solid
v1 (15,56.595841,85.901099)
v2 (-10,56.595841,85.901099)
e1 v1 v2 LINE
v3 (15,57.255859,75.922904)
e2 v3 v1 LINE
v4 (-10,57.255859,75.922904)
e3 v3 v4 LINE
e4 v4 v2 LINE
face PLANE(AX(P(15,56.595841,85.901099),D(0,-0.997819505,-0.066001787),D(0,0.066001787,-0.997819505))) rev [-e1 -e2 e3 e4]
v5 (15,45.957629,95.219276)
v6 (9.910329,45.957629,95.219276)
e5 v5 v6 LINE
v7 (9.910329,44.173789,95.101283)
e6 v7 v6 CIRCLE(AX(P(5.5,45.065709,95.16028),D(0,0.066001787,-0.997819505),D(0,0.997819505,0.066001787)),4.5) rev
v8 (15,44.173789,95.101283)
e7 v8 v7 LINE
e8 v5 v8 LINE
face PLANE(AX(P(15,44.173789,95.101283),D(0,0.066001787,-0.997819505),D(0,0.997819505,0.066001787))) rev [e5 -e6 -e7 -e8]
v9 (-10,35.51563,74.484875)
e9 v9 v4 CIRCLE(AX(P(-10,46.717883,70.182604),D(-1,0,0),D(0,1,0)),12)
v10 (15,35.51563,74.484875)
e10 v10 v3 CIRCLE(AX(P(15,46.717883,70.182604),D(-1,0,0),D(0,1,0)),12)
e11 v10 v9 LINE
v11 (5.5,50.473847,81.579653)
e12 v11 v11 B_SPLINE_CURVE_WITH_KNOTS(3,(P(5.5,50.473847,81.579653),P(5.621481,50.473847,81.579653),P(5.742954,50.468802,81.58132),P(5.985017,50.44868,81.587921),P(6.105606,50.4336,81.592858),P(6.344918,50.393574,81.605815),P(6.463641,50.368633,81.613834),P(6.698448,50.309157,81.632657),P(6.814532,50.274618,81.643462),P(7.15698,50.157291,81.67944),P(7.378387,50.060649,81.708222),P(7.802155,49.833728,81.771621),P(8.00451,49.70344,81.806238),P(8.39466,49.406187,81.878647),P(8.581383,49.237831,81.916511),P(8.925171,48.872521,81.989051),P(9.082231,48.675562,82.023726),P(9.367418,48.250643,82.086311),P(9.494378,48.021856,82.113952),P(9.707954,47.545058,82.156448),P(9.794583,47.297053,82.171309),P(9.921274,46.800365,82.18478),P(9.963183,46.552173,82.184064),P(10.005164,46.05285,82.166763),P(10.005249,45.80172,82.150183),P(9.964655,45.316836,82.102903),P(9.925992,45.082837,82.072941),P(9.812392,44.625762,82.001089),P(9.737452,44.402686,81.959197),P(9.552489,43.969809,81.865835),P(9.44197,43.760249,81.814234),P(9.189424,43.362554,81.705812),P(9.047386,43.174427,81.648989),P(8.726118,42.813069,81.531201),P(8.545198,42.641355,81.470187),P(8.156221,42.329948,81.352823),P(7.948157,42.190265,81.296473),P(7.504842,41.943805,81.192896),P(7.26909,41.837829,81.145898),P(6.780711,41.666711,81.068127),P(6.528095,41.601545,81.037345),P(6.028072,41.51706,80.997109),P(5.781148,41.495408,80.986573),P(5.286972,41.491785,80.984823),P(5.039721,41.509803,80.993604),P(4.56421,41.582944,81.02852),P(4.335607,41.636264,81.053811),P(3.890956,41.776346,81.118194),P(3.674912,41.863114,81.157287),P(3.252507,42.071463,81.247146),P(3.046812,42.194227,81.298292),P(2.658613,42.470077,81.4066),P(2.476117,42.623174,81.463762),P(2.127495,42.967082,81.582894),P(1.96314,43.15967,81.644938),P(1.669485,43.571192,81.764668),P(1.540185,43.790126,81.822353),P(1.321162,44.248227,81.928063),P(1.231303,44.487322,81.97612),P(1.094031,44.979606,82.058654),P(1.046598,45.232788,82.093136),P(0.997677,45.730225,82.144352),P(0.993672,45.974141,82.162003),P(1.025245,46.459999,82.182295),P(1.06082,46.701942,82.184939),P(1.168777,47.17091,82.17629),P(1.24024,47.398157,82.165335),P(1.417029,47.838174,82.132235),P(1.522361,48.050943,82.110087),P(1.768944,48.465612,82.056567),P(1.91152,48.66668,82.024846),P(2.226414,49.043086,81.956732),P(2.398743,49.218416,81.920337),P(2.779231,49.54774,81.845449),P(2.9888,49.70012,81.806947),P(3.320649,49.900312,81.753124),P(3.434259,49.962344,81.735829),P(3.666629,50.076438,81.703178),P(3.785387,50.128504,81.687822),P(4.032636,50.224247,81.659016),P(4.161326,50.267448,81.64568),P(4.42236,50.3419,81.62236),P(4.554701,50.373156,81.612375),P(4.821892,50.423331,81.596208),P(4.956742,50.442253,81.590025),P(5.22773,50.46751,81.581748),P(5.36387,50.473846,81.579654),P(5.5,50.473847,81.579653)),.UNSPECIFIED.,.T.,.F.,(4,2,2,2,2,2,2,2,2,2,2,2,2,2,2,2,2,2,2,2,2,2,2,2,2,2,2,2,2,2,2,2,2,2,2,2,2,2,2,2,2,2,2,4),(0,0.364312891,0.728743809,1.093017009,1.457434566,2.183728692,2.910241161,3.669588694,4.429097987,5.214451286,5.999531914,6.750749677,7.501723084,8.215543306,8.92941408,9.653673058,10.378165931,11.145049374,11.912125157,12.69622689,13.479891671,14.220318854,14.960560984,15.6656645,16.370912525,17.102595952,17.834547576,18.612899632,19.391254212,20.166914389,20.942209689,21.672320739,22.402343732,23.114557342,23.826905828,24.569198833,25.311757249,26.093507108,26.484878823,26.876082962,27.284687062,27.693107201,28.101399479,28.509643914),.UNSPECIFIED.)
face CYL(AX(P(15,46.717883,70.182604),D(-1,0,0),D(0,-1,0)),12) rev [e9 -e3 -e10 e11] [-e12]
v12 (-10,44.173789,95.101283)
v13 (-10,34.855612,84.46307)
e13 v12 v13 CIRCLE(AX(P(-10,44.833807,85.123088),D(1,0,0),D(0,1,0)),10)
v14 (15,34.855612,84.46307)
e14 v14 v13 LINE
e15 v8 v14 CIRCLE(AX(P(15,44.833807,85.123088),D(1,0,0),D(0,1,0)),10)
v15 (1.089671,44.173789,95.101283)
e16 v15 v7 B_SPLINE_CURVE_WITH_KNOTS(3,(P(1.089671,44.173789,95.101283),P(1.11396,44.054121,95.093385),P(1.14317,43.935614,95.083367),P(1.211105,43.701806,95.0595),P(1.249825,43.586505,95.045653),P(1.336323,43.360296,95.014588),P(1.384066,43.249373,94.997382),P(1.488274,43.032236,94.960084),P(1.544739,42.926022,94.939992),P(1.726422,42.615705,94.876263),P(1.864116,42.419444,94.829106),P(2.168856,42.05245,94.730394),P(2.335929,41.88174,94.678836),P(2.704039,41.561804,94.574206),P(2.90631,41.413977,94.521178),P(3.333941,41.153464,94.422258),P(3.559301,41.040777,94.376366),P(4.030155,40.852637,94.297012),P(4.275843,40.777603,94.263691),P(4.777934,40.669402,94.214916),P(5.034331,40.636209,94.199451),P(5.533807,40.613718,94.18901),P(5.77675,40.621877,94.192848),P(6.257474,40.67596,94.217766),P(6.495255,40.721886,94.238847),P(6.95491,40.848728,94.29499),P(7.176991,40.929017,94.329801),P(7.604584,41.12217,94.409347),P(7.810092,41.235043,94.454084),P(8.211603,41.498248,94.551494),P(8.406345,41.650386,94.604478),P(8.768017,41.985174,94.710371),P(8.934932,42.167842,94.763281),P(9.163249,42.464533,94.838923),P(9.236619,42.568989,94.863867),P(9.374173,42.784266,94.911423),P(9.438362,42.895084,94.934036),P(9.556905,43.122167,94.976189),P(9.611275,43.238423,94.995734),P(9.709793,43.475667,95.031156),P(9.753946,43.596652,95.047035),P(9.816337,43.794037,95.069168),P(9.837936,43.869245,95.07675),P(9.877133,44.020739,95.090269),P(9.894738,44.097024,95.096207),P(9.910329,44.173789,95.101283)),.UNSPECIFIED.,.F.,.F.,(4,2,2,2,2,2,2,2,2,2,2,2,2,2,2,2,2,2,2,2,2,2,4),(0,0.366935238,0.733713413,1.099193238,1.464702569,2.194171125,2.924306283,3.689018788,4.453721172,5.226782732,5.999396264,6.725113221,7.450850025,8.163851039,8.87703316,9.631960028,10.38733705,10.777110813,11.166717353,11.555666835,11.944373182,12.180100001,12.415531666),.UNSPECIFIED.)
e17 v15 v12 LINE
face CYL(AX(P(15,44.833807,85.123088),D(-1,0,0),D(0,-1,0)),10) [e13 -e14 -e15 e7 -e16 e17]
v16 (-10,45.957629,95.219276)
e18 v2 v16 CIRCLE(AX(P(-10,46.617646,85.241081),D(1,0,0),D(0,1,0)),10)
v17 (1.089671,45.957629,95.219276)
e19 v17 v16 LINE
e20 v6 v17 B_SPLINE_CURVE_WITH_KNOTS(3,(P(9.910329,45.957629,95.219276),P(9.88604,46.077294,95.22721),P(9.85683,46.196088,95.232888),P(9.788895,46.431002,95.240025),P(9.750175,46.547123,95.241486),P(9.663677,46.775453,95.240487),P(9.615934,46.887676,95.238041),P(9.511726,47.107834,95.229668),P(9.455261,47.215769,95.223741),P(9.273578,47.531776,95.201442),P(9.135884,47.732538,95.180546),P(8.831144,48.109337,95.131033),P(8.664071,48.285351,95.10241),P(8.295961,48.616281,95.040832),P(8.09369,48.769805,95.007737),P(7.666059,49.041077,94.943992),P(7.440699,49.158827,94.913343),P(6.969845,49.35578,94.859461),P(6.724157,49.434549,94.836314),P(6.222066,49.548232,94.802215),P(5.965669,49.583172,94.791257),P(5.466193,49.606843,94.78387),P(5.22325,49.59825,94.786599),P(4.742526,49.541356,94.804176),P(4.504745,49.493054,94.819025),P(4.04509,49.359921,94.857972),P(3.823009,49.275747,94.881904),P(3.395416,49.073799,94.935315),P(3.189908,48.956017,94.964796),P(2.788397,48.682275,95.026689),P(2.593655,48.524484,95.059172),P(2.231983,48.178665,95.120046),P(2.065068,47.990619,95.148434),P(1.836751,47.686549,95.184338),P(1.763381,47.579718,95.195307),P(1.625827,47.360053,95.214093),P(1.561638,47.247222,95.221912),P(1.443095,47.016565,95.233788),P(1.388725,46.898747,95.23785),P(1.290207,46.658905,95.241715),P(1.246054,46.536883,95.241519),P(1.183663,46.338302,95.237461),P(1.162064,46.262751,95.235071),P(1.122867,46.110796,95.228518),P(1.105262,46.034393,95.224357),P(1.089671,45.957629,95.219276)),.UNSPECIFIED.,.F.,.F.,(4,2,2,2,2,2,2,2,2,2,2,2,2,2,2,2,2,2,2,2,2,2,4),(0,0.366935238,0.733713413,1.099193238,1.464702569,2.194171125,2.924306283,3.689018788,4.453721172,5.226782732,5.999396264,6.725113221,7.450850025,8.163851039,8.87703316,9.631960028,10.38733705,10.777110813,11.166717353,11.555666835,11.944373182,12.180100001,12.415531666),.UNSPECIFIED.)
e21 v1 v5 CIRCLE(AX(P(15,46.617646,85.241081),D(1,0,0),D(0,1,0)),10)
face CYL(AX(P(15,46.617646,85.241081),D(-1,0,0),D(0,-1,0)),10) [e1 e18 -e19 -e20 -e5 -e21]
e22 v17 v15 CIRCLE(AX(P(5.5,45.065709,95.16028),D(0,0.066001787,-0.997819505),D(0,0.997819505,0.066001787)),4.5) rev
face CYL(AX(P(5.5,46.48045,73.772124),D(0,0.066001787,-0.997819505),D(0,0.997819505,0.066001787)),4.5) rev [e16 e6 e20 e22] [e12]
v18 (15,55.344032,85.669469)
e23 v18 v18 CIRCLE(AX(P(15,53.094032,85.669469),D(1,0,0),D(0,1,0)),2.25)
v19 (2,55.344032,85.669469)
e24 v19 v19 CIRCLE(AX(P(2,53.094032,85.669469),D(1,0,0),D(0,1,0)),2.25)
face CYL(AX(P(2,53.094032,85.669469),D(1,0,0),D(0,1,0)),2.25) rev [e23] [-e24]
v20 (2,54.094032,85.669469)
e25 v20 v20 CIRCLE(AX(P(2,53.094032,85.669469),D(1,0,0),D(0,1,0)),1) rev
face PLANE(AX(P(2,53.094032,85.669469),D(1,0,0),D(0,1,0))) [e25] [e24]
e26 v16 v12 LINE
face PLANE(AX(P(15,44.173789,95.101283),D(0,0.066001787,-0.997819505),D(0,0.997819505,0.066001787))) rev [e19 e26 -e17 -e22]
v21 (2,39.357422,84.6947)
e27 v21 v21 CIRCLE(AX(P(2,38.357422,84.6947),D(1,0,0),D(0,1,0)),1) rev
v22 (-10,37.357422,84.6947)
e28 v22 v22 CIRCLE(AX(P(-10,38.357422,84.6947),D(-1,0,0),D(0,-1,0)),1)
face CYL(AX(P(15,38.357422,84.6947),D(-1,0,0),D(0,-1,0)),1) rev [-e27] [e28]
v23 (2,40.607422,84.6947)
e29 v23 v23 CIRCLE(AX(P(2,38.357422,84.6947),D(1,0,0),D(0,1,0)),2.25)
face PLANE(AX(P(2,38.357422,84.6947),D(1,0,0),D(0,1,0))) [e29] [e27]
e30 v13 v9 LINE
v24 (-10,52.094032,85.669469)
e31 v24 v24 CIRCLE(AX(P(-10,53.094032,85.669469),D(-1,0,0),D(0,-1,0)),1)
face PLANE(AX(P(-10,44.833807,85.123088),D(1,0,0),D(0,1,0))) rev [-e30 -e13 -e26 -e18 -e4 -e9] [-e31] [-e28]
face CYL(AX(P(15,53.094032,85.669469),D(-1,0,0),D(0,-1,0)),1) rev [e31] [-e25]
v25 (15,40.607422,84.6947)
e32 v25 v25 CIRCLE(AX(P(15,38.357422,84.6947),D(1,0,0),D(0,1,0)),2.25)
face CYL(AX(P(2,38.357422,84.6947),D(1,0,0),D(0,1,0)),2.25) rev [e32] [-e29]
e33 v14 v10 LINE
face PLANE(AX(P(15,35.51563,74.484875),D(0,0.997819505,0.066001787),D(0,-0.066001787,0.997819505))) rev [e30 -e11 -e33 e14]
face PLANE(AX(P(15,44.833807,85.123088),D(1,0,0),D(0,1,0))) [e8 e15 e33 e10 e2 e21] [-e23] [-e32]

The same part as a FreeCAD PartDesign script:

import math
import FreeCAD as App
import Part
import Sketcher
Q = App.Units.Quantity

doc = App.newDocument("Part")
body = doc.addObject("PartDesign::Body", "Body")

sketch1 = body.newObject("Sketcher::SketchObject", "Sketch")
sketch1.AttachmentSupport = (doc.getObject("YZ_Plane"), [""])
sketch1.MapMode = "FlatFace"
sketch1.AttachmentOffset = App.Placement(App.Vector(0, 0, -10), App.Rotation())
sketch1.addGeometry([
    Part.LineSegment(App.Vector(45.957629, 95.219276, 0), App.Vector(44.173789, 95.101283, 0)),
    Part.ArcOfCircle(Part.Circle(App.Vector(44.833807, 85.123088, 0), App.Vector(0, 0, 1), 10), math.radians(93.784375), math.radians(183.784375)),
    Part.LineSegment(App.Vector(34.855612, 84.46307, 0), App.Vector(35.51563, 74.484875, 0)),
    Part.ArcOfCircle(Part.Circle(App.Vector(46.717883, 70.182604, 0), App.Vector(0, 0, 1), 12), math.radians(28.578237), math.radians(158.990512)),
    Part.LineSegment(App.Vector(57.255859, 75.922904, 0), App.Vector(56.595841, 85.901099, 0)),
    Part.ArcOfCircle(Part.Circle(App.Vector(46.617646, 85.241081, 0), App.Vector(0, 0, 1), 10), math.radians(3.784375), math.radians(93.784375)),
], False)
sketch1.addConstraint([
    Sketcher.Constraint("Tangent", 0, 2, 1, 1),
    Sketcher.Constraint("Tangent", 1, 2, 2, 1),
    Sketcher.Constraint("Coincident", 2, 2, 3, 2),
    Sketcher.Constraint("Coincident", 3, 1, 4, 1),
    Sketcher.Constraint("Tangent", 4, 2, 5, 1),
    Sketcher.Constraint("Tangent", 5, 2, 0, 1),
    Sketcher.Constraint("Equal", 1, 5),
    Sketcher.Constraint("Perpendicular", 0, 2),
    Sketcher.Constraint("Parallel", 2, 4),
    Sketcher.Constraint("Equal", 2, 4),
    Sketcher.Constraint("Radius", 1, Q("10 mm")),
    Sketcher.Constraint("Radius", 3, Q("12 mm")),
    Sketcher.Constraint("Distance", 2, Q("10 mm")),
    Sketcher.Constraint("DistanceY", -1, 1, 4, 2, Q("85.901099 mm")),
    Sketcher.Constraint("DistanceY", 5, 3, 0, 2, Q("9.860201 mm")),
    Sketcher.Constraint("DistanceY", 3, 3, 3, 1, Q("5.7403 mm")),
    Sketcher.Constraint("DistanceX", -1, 1, 0, 2, Q("44.173789 mm")),
])
pad1 = body.newObject("PartDesign::Pad", "Pad")
pad1.Profile = sketch1
pad1.Length = 25

sketch2 = body.newObject("Sketcher::SketchObject", "Sketch001")
sketch2.Placement = App.Placement(App.Vector(0, 0.216574, -6.555528), App.Rotation(App.Vector(1, 0, 0), App.Vector(0, 0.997819505, 0.066001787), App.Vector(0, -0.066001787, 0.997819505), "ZXY"))
sketch2.addGeometry(Part.Circle(App.Vector(5.5, 51.464766, 0), App.Vector(0, 0, 1), 4.5), False)
sketch2.addConstraint([
    Sketcher.Constraint("Diameter", 0, Q("9 mm")),
    Sketcher.Constraint("DistanceX", -1, 1, 0, 3, Q("5.5 mm")),
    Sketcher.Constraint("DistanceY", -1, 1, 0, 3, Q("51.464766 mm")),
])
pocket1 = body.newObject("PartDesign::Pocket", "Pocket")
pocket1.Profile = sketch2
pocket1.Type = "ThroughAll"
pocket1.Midplane = True

sketch3 = body.newObject("Sketcher::SketchObject", "Sketch002")
sketch3.AttachmentSupport = (doc.getObject("YZ_Plane"), [""])
sketch3.MapMode = "FlatFace"
sketch3.AttachmentOffset = App.Placement(App.Vector(0, 0, -10), App.Rotation())
sketch3.addGeometry([
    Part.Circle(App.Vector(53.094032, 85.669469, 0), App.Vector(0, 0, 1), 1),
    Part.Circle(App.Vector(38.357422, 84.6947, 0), App.Vector(0, 0, 1), 1),
], False)
sketch3.addConstraint([
    Sketcher.Constraint("Equal", 0, 1),
    Sketcher.Constraint("Diameter", 0, Q("2 mm")),
    Sketcher.Constraint("DistanceY", -1, 1, 1, 3, Q("84.6947 mm")),
    Sketcher.Constraint("DistanceX", -1, 1, 0, 3, Q("53.094032 mm")),
    Sketcher.Constraint("DistanceY", -1, 1, 0, 3, Q("85.669469 mm")),
    Sketcher.Constraint("DistanceX", -1, 1, 1, 3, Q("38.357422 mm")),
])
pocket2 = body.newObject("PartDesign::Pocket", "Pocket001")
pocket2.Profile = sketch3
pocket2.Type = "ThroughAll"
pocket2.Reversed = True

sketch4 = body.newObject("Sketcher::SketchObject", "Sketch003")
sketch4.AttachmentSupport = (doc.getObject("YZ_Plane"), [""])
sketch4.MapMode = "FlatFace"
sketch4.AttachmentOffset = App.Placement(App.Vector(0, 0, 15), App.Rotation())
sketch4.addGeometry([
    Part.Circle(App.Vector(38.357422, 84.6947, 0), App.Vector(0, 0, 1), 2.25),
    Part.Circle(App.Vector(53.094032, 85.669469, 0), App.Vector(0, 0, 1), 2.25),
], False)
sketch4.addConstraint([
    Sketcher.Constraint("Equal", 0, 1),
    Sketcher.Constraint("Diameter", 0, Q("4.5 mm")),
    Sketcher.Constraint("DistanceY", -1, 1, 0, 3, Q("84.6947 mm")),
    Sketcher.Constraint("DistanceX", -1, 1, 0, 3, Q("38.357422 mm")),
    Sketcher.Constraint("DistanceX", -1, 1, 1, 3, Q("53.094032 mm")),
    Sketcher.Constraint("DistanceY", -1, 1, 1, 3, Q("85.669469 mm")),
])
pocket3 = body.newObject("PartDesign::Pocket", "Pocket002")
pocket3.Profile = sketch4
pocket3.Length = 13

doc.recompute()
